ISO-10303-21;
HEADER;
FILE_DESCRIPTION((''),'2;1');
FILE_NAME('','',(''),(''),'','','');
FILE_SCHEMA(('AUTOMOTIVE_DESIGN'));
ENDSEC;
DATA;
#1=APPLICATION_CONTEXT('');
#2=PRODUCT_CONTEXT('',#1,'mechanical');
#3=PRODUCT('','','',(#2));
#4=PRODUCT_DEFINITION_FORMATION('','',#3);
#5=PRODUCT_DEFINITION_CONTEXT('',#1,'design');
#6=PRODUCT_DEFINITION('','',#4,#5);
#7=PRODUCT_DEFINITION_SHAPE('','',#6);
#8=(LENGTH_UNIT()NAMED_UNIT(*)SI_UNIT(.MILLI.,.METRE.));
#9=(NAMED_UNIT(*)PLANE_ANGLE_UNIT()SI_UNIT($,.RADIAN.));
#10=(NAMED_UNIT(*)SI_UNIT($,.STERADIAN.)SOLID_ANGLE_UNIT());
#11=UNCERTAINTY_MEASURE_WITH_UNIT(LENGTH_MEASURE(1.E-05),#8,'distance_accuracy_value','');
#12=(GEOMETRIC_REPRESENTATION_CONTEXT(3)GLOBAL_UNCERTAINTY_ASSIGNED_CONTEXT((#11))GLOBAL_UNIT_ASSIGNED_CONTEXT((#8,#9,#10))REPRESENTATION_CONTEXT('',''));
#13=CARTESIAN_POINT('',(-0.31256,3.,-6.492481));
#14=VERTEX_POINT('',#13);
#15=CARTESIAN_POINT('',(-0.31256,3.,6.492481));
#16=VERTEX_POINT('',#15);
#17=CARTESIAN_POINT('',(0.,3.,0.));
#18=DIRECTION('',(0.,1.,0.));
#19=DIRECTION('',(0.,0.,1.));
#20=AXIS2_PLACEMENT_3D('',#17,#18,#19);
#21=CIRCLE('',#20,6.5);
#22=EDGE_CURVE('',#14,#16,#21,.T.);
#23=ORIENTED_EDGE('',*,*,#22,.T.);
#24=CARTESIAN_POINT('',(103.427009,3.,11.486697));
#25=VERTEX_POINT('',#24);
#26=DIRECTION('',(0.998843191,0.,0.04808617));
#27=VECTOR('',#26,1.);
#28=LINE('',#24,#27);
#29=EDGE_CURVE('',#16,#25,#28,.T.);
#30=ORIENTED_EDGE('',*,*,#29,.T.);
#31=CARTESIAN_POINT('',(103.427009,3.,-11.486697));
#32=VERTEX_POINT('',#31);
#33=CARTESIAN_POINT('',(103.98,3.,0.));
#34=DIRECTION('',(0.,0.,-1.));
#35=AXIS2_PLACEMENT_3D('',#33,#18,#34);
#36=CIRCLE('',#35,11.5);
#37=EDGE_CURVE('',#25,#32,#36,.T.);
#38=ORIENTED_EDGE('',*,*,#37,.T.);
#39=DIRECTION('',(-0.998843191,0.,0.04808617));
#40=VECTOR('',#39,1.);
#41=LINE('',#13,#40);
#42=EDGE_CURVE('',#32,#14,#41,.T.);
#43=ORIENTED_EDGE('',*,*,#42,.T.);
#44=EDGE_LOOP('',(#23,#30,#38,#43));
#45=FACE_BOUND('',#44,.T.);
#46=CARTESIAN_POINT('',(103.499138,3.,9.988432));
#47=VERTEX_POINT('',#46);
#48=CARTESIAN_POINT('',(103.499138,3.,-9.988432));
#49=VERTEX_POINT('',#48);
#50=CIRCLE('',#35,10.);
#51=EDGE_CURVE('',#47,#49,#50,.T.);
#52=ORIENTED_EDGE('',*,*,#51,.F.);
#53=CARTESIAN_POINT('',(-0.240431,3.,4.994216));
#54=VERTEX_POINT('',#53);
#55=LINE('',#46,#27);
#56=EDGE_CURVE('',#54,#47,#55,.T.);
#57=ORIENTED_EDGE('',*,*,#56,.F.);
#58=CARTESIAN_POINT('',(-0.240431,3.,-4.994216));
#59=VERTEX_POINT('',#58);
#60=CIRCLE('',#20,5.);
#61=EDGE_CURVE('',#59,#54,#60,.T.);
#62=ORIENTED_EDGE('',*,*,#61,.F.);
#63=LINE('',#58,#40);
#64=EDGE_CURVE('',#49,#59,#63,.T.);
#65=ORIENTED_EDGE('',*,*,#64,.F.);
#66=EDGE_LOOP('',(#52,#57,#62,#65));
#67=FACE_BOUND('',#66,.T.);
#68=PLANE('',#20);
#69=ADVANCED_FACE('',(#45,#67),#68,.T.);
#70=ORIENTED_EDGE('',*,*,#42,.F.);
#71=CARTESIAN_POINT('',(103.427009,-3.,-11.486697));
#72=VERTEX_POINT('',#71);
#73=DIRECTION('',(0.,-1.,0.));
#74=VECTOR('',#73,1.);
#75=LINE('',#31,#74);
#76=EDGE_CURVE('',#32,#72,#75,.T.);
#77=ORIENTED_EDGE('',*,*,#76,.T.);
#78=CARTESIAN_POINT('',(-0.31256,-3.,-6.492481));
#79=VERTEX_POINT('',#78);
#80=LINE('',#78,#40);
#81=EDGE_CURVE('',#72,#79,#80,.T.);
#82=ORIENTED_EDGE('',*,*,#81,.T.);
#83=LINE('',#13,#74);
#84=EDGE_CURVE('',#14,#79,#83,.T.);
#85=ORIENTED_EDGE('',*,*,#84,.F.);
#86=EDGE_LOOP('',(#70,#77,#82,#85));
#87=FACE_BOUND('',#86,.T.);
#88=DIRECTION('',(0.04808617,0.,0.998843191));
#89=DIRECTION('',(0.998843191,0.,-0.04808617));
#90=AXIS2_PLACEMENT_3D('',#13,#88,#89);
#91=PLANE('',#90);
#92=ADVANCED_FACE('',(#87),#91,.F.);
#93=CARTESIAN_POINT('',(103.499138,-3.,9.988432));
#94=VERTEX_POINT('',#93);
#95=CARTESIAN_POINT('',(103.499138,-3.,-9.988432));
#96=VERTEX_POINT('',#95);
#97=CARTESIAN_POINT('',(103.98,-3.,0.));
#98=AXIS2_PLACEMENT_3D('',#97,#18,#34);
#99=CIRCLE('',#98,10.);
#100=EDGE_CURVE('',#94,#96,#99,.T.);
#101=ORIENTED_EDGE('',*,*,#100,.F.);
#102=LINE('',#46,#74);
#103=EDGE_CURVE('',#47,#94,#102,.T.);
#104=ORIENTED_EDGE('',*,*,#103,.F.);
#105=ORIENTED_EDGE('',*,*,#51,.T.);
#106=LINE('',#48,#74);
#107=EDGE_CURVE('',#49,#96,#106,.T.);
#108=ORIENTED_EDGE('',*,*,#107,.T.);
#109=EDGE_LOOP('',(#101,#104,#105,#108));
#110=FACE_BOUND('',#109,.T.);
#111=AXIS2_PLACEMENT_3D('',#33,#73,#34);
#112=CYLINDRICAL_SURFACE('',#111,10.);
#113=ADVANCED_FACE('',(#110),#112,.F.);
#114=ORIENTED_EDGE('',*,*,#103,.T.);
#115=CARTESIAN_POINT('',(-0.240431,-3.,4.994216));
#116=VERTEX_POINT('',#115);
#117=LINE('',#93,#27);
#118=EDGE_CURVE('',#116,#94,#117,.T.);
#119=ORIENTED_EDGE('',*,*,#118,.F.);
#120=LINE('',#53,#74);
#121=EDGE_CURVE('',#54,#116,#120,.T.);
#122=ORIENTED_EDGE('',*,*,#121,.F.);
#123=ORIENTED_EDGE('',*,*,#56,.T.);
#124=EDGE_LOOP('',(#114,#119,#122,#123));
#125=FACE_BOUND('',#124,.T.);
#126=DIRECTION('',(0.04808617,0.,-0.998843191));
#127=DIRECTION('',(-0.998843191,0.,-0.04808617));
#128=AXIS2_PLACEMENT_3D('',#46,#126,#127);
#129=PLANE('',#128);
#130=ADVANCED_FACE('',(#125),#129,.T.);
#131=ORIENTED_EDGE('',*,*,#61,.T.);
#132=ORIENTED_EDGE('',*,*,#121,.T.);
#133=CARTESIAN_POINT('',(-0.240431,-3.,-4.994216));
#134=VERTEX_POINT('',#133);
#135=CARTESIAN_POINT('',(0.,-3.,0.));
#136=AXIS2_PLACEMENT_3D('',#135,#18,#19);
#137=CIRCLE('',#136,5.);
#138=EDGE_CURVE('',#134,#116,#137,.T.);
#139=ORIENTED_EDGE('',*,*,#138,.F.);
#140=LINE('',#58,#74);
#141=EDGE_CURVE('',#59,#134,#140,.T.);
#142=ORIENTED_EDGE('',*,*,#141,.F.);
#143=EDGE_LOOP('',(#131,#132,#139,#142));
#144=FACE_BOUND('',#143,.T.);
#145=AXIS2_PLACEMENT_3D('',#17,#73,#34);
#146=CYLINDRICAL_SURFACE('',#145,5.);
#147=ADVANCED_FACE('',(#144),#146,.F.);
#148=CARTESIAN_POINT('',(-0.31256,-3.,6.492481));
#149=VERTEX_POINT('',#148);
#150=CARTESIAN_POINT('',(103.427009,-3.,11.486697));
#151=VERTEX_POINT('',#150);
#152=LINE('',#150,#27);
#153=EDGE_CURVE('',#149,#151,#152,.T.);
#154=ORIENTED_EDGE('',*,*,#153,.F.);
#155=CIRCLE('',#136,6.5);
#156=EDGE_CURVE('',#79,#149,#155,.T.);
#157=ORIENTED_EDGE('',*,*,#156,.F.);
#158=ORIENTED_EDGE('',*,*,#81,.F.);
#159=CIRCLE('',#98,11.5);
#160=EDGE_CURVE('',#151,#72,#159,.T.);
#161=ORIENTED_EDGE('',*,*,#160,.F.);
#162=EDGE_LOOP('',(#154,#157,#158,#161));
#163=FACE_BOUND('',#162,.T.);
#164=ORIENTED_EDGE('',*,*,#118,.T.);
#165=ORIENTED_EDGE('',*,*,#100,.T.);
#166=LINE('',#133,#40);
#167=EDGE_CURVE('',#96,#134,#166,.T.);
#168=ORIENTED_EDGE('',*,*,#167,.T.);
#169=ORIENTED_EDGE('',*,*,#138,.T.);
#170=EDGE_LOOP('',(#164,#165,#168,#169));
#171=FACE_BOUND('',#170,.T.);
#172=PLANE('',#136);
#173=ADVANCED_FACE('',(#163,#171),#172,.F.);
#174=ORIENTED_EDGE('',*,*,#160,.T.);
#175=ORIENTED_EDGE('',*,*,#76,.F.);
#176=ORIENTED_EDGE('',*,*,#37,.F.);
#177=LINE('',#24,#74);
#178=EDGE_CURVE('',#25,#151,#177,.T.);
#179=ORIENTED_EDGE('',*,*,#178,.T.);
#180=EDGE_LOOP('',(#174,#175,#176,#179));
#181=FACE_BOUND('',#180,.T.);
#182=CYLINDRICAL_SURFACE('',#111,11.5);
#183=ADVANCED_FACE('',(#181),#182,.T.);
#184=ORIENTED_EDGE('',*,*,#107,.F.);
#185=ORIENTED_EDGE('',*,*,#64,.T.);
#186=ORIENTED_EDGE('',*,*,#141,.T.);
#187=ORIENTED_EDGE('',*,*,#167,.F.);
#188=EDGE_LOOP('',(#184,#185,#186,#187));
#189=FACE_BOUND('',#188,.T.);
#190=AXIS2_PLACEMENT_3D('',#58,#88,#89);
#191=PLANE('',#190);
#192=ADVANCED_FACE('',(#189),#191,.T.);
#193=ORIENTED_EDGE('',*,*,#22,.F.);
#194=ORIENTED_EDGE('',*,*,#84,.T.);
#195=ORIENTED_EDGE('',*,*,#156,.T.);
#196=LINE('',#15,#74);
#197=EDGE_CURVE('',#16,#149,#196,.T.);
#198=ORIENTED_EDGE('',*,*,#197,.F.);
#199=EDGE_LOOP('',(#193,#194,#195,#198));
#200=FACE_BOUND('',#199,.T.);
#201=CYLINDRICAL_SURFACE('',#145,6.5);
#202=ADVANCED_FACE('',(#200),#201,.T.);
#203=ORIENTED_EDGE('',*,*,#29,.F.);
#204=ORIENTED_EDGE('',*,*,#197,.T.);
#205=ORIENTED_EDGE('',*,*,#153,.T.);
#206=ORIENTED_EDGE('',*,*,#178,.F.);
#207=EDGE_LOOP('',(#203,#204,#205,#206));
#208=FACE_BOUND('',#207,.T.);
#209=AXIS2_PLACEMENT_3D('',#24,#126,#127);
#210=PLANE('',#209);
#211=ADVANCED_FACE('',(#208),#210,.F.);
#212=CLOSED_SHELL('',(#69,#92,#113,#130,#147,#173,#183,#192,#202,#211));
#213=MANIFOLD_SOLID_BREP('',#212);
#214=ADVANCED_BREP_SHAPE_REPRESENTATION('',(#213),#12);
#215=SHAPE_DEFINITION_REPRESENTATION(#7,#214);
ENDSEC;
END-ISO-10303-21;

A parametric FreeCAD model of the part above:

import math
import FreeCAD as App
import Part
import Sketcher
from FreeCAD import Vector
Q = App.Units.Quantity

doc = App.newDocument("Part")
body = doc.addObject("PartDesign::Body", "Body")

sketch1 = body.newObject("Sketcher::SketchObject", "Sketch")
sketch1.AttachmentSupport = (doc.getObject("XZ_Plane"), [""])
sketch1.MapMode = "FlatFace"
sketch1.addGeometry([
    Part.LineSegment(Vector(103, -11, 0), Vector(0, -6, 0)),
    Part.ArcOfCircle(Part.Circle(Vector(0, 0, 0), Vector(0, 0, 1), 7), math.radians(93), math.radians(267)),
    Part.LineSegment(Vector(0, 6, 0), Vector(103, 11, 0)),
    Part.ArcOfCircle(Part.Circle(Vector(104, 0, 0), Vector(0, 0, 1), 12), math.radians(-93), math.radians(93)),
    Part.LineSegment(Vector(0, -5, 0), Vector(103, -10, 0)),
    Part.ArcOfCircle(Part.Circle(Vector(104, 0, 0), Vector(0, 0, 1), 10), math.radians(-93), math.radians(93)),
    Part.LineSegment(Vector(103, 10, 0), Vector(0, 5, 0)),
    Part.ArcOfCircle(Part.Circle(Vector(0, 0, 0), Vector(0, 0, 1), 5), math.radians(93), math.radians(267)),
], False)
sketch1.addConstraint([
    Sketcher.Constraint("Tangent", 0, 2, 1, 2),
    Sketcher.Constraint("Tangent", 1, 1, 2, 1),
    Sketcher.Constraint("Tangent", 2, 2, 3, 2),
    Sketcher.Constraint("Tangent", 3, 1, 0, 1),
    Sketcher.Constraint("Tangent", 4, 2, 5, 1),
    Sketcher.Constraint("Tangent", 5, 2, 6, 1),
    Sketcher.Constraint("Tangent", 6, 2, 7, 1),
    Sketcher.Constraint("Tangent", 7, 2, 4, 1),
    Sketcher.Constraint("Coincident", 1, 3, -1, 1),
    Sketcher.Constraint("Coincident", 7, 3, -1, 1),
    Sketcher.Constraint("Coincident", 5, 3, 3, 3),
    Sketcher.Constraint("PointOnObject", 3, 3, -1),
    Sketcher.Constraint("Parallel", 0, 4),
    Sketcher.Constraint("Radius", 5, Q("10 mm")),
    Sketcher.Constraint("Radius", 7, Q("5 mm")),
    Sketcher.Constraint("Radius", 1, Q("6.5 mm")),
    Sketcher.Constraint("DistanceX", -1, 1, 3, 3, Q("103.98 mm")),
])
pad1 = body.newObject("PartDesign::Pad", "Pad")
pad1.Profile = sketch1
pad1.Length = 6
pad1.Midplane = True

doc.recompute()
